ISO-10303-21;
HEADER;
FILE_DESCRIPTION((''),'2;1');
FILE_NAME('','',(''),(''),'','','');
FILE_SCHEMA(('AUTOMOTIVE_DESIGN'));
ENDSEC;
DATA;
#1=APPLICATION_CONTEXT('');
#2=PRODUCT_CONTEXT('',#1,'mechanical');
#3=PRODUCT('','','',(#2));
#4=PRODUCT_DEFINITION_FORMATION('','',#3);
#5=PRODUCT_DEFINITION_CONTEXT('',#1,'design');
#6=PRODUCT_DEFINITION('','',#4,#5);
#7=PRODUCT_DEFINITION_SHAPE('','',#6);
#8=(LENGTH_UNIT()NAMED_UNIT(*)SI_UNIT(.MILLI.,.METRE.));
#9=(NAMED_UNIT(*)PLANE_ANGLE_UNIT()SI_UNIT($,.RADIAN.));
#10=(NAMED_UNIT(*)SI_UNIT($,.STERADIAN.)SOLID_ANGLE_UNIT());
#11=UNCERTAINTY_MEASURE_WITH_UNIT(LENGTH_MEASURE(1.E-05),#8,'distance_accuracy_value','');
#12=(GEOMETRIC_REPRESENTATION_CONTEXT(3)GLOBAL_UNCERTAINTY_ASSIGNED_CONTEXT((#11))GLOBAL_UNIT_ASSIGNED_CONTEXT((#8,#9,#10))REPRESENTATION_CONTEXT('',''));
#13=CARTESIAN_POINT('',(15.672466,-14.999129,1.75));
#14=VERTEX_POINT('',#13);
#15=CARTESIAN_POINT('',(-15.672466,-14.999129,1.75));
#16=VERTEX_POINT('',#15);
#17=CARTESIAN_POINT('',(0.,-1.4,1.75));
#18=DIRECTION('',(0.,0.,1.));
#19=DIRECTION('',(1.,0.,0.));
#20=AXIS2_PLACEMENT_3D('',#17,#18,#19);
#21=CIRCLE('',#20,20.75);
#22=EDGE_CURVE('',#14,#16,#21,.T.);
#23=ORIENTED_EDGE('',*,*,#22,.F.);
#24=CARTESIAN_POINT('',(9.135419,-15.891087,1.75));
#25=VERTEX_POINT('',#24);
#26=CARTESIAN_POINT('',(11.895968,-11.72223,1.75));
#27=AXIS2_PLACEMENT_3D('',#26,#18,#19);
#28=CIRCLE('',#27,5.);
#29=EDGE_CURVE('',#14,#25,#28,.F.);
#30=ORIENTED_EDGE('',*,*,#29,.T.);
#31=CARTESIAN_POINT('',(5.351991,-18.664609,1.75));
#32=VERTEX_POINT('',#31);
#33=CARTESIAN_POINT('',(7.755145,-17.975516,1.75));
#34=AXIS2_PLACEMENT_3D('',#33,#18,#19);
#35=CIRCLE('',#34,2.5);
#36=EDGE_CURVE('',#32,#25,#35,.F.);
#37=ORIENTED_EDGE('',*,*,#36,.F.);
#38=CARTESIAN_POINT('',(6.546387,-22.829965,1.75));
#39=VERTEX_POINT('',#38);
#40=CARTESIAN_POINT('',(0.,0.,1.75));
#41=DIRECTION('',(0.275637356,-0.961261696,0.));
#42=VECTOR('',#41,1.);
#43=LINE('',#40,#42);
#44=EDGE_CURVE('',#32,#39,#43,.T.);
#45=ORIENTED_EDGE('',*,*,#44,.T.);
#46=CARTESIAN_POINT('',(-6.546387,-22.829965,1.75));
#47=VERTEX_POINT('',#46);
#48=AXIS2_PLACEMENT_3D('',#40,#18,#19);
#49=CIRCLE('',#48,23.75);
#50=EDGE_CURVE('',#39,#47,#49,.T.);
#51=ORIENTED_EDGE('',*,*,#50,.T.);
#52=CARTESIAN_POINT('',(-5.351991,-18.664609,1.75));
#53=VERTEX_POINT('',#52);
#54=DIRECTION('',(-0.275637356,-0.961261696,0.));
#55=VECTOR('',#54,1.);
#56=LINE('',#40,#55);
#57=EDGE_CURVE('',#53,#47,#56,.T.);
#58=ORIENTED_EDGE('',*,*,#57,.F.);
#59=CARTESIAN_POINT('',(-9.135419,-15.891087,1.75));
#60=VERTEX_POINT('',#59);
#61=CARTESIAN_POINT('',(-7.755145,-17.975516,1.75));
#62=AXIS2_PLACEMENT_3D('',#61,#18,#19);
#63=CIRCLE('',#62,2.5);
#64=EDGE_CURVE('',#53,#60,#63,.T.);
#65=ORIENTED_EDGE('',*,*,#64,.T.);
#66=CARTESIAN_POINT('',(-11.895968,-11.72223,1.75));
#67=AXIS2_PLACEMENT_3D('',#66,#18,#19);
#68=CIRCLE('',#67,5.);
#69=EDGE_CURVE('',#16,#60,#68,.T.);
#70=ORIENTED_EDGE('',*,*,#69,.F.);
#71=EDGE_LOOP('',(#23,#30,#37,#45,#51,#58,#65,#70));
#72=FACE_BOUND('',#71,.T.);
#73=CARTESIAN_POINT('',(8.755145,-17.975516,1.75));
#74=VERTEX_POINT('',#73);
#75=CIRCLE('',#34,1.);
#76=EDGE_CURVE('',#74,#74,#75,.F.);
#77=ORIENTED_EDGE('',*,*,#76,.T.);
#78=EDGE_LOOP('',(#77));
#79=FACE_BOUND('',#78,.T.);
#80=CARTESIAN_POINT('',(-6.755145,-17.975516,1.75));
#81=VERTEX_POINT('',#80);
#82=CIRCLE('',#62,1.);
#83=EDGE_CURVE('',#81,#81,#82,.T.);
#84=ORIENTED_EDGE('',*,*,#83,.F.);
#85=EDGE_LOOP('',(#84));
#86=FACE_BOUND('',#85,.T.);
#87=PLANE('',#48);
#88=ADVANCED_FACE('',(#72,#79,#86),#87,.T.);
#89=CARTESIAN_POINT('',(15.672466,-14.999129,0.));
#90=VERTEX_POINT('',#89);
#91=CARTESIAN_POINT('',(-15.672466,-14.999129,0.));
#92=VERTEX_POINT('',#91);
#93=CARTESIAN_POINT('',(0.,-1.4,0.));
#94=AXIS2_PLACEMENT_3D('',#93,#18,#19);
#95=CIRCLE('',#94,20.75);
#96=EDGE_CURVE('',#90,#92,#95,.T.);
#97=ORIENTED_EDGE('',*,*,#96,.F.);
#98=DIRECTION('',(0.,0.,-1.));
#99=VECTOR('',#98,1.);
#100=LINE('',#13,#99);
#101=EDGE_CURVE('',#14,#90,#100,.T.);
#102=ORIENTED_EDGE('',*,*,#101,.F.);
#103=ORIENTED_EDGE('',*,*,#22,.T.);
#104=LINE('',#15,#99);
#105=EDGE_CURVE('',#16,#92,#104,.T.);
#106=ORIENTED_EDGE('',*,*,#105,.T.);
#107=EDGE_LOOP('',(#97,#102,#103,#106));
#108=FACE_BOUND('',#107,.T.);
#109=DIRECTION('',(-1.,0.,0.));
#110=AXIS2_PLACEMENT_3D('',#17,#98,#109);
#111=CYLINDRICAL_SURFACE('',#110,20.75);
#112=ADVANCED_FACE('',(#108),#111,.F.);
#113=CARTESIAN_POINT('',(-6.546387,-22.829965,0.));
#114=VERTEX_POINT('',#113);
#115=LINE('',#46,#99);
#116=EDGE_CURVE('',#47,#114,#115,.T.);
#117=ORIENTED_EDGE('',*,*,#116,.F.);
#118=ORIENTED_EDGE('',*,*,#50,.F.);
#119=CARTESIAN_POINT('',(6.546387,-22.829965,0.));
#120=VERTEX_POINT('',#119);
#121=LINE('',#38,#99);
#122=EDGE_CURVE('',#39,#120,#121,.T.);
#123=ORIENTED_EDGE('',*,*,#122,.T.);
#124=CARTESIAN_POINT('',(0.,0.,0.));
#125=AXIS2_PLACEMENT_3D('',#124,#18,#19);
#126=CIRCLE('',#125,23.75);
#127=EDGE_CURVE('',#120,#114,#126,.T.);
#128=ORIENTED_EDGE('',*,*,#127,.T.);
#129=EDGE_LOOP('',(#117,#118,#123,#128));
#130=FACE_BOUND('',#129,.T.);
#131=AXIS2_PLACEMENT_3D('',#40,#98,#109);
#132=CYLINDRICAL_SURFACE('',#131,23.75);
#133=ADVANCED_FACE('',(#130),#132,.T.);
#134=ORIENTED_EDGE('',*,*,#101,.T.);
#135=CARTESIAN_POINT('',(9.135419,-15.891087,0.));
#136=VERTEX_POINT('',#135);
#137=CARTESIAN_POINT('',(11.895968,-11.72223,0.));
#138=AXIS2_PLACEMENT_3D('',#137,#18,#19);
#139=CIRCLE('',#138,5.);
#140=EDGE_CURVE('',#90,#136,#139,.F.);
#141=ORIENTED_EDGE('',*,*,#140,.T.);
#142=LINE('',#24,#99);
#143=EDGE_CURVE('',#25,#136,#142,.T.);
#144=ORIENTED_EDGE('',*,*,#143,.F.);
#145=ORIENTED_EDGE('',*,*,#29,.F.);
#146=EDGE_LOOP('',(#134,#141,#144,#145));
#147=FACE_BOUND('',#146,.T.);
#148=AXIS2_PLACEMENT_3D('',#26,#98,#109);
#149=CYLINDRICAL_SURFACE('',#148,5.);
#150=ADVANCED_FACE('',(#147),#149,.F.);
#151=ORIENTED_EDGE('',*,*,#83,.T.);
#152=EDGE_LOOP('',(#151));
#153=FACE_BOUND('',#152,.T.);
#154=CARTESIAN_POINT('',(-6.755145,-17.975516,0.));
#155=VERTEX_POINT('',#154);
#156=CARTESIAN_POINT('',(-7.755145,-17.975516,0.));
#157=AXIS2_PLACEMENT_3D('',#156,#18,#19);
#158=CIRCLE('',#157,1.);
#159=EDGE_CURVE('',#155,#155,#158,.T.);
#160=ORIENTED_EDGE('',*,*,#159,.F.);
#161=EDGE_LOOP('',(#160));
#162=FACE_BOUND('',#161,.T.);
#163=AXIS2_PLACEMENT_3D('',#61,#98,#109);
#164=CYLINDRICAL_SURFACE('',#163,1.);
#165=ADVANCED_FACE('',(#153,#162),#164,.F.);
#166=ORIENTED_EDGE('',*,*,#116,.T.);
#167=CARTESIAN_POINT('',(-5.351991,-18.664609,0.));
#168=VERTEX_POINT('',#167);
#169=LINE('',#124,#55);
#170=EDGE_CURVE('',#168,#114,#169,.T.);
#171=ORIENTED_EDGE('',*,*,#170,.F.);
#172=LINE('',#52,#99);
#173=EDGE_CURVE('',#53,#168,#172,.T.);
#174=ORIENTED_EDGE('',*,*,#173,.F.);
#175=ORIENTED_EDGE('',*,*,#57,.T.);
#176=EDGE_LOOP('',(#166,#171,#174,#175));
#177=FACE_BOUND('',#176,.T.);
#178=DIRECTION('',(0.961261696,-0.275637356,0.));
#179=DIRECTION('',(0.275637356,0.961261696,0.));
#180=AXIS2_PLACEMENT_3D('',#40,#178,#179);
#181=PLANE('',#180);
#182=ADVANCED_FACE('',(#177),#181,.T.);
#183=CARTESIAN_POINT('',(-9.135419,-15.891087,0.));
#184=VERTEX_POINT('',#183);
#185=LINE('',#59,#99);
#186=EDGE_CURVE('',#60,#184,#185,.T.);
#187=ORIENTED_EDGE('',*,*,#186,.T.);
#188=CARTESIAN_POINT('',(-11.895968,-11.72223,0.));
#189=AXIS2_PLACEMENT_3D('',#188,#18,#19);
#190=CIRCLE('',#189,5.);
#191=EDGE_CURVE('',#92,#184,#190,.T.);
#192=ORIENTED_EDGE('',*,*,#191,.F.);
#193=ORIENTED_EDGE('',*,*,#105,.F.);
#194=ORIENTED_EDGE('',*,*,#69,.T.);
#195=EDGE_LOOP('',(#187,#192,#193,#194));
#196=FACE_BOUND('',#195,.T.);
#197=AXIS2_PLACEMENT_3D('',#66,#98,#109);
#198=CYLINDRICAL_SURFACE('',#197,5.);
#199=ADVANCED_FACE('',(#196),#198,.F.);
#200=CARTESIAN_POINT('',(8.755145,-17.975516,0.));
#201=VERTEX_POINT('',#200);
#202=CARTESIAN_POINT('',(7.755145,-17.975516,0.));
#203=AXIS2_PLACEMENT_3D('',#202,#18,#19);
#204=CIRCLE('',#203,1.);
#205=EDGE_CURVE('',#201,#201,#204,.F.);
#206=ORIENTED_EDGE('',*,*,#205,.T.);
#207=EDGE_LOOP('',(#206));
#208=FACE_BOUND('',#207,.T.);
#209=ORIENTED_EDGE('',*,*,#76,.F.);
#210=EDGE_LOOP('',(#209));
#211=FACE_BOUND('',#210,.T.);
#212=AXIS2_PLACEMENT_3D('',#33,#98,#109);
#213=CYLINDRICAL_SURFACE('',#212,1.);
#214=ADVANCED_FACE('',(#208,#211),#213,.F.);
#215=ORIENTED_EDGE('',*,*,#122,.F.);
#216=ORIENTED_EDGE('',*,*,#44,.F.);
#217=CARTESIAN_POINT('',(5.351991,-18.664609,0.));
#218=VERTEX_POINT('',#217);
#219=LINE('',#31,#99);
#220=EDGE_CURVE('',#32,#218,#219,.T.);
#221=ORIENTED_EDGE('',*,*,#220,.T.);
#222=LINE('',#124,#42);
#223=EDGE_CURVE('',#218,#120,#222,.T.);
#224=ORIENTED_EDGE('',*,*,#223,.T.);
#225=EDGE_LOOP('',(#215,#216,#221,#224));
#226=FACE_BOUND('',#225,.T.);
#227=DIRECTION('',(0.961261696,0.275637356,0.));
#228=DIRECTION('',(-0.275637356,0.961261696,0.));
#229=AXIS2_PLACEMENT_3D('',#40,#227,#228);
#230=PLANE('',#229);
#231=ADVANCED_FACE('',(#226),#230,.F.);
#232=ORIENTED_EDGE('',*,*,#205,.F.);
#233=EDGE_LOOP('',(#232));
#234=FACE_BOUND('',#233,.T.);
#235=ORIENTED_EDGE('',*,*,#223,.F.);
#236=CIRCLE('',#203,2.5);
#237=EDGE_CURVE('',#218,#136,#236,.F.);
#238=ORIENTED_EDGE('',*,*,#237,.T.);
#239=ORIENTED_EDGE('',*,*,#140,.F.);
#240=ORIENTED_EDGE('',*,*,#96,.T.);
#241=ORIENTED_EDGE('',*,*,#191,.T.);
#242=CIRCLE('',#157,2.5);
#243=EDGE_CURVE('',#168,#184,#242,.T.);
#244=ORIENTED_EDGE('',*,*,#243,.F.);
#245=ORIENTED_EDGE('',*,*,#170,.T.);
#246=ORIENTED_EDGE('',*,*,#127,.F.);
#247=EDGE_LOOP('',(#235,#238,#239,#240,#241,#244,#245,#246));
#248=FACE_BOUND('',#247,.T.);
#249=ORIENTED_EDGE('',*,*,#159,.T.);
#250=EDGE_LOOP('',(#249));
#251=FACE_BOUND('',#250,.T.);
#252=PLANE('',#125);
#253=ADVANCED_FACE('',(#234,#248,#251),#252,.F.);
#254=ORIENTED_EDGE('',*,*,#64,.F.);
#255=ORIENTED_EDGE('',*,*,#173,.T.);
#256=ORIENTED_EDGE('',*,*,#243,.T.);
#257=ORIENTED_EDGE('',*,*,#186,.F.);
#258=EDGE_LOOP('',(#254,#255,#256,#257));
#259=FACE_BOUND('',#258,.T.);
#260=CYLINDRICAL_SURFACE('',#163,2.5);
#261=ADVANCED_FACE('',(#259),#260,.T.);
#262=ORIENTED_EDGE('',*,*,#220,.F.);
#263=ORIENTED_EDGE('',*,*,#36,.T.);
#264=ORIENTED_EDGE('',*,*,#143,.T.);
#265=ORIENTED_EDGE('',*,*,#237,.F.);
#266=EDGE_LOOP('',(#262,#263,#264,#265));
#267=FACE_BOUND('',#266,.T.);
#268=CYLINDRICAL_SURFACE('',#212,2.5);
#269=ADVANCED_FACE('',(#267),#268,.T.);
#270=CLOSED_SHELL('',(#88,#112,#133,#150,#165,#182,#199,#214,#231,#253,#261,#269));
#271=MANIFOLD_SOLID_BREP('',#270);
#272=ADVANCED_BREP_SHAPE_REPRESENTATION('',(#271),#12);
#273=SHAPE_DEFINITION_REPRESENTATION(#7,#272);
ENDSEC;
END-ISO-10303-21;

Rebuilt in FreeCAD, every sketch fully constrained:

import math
import FreeCAD as App
import Part
import Sketcher

V = App.Vector
Q = App.Units.Quantity

doc = App.newDocument("Part")
body = doc.addObject("PartDesign::Body", "Body")

# Sketch on XY plane
sketch1 = doc.addObject("Sketcher::SketchObject", "Sketch")
body.addObject(sketch1)
sketch1.AttachmentSupport = (doc.XY_Plane, [""])
sketch1.MapMode = "FlatFace"
sketch1.addGeometry([
    Part.ArcOfCircle(Part.Circle(V(-7.8, -18, 0), V(0, 0, 1), 2.5), math.radians(-16), math.radians(124)),  # 0
    Part.ArcOfCircle(Part.Circle(V(-11.9, -11.7, 0), V(0, 0, 1), 5), math.radians(-139), math.radians(-56)),  # 1
    Part.ArcOfCircle(Part.Circle(V(0, -1.4, 0), V(0, 0, 1), 20.8), math.radians(-41), math.radians(221)),  # 2
    Part.ArcOfCircle(Part.Circle(V(11.9, -11.7, 0), V(0, 0, 1), 5), math.radians(-124), math.radians(-41)),  # 3
    Part.ArcOfCircle(Part.Circle(V(7.8, -18, 0), V(0, 0, 1), 2.5), math.radians(56), math.radians(196)),  # 4
    Part.LineSegment(V(5.4, -18.7, 0), V(6.5, -22.8, 0)),  # 5
    Part.ArcOfCircle(Part.Circle(V(0, 0, 0), V(0, 0, 1), 23.8), math.radians(-74), math.radians(254)),  # 6
    Part.LineSegment(V(-6.5, -22.8, 0), V(-5.4, -18.7, 0)),  # 7
    Part.Circle(V(-7.8, -18, 0), V(0, 0, 1), 1),  # 8
    Part.Circle(V(7.8, -18, 0), V(0, 0, 1), 1),  # 9
], False)
sketch1.addConstraint([
    Sketcher.Constraint("Tangent", 0, 2, 1, 2),
    Sketcher.Constraint("Tangent", 1, 1, 2, 2),
    Sketcher.Constraint("Tangent", 2, 1, 3, 2),
    Sketcher.Constraint("Tangent", 3, 1, 4, 1),
    Sketcher.Constraint("Tangent", 4, 2, 5, 1),
    Sketcher.Constraint("Coincident", 5, 2, 6, 1),
    Sketcher.Constraint("Coincident", 6, 2, 7, 1),
    Sketcher.Constraint("Tangent", 7, 2, 0, 1),
    Sketcher.Constraint("Coincident", 6, 3, -1, 1),
    Sketcher.Constraint("Coincident", 8, 3, 0, 3),
    Sketcher.Constraint("Coincident", 9, 3, 4, 3),
    Sketcher.Constraint("Equal", 1, 3),
    Sketcher.Constraint("Equal", 0, 4),
    Sketcher.Constraint("Equal", 8, 9),
    Sketcher.Constraint("Symmetric", 1, 3, 3, 3, -2),
    Sketcher.Constraint("Symmetric", 4, 2, 7, 2, -2),
    Sketcher.Constraint("Diameter", 8, 2.0),
    Sketcher.Constraint("Radius", 1, 5.0),
    Sketcher.Constraint("Radius", 0, 2.5),
    Sketcher.Constraint("Angle", 5, Q("-74 deg")),
    Sketcher.Constraint("Radius", 2, 20.75),
    Sketcher.Constraint("Radius", 6, 23.75),
    Sketcher.Constraint("DistanceY", 2, 3, -1, 1, 1.4),
    Sketcher.Constraint("DistanceY", 1, 1, 1, 3, 3.276898),
    Sketcher.Constraint("DistanceX", 0, 2, -1, 1, 9.135419),
])
pad1 = doc.addObject("PartDesign::Pad", "Pad")
body.addObject(pad1)
pad1.Profile = sketch1
pad1.Length = 1.75

doc.recompute()
